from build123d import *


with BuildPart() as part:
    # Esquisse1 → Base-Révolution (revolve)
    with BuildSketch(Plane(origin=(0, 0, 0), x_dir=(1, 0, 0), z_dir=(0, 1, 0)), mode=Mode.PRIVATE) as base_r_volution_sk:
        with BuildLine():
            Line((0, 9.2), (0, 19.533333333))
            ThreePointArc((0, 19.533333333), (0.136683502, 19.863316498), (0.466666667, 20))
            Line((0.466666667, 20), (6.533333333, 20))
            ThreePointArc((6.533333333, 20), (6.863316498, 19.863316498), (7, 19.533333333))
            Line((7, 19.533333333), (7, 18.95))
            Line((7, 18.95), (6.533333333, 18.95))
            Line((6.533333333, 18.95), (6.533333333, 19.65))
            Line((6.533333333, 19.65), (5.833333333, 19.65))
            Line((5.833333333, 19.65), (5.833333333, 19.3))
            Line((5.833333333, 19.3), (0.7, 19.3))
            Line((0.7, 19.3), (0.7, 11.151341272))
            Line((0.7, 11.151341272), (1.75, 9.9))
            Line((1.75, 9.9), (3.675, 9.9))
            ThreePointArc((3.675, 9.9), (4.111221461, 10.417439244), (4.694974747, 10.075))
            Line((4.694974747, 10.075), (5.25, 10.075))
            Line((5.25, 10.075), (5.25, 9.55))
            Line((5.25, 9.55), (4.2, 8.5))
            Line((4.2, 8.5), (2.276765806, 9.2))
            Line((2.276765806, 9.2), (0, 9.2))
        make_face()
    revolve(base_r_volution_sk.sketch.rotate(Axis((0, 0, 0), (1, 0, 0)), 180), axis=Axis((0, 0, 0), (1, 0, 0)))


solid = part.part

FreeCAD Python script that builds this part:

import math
import FreeCAD as App
import Part
import Sketcher

V = App.Vector
Q = App.Units.Quantity

doc = App.newDocument("Part")
body = doc.addObject("PartDesign::Body", "Body")

sketch1 = body.newObject("Sketcher::SketchObject", "Sketch")
sketch1.AttachmentSupport = (doc.getObject("XZ_Plane"), [""])
sketch1.MapMode = "FlatFace"
sketch1.addGeometry(Part.LineSegment(V(0, -19.53, 0), V(0, -9.2, 0)), False)
sketch1.addGeometry(Part.LineSegment(V(0, -9.2, 0), V(2.28, -9.2, 0)), False)
sketch1.addGeometry(Part.LineSegment(V(2.28, -9.2, 0), V(4.2, -8.5, 0)), False)
sketch1.addGeometry(Part.LineSegment(V(4.2, -8.5, 0), V(5.25, -9.55, 0)), False)
sketch1.addGeometry(Part.LineSegment(V(5.25, -9.55, 0), V(5.25, -10.07, 0)), False)
sketch1.addGeometry(Part.LineSegment(V(5.25, -10.07, 0), V(4.69, -10.07, 0)), False)
sketch1.addGeometry(Part.ArcOfCircle(Part.Circle(V(4.2, -9.9, 0), V(0, 0, 1), 0.53), math.radians(180), math.radians(341)), False)
sketch1.addGeometry(Part.LineSegment(V(3.67, -9.9, 0), V(1.75, -9.9, 0)), False)
sketch1.addGeometry(Part.LineSegment(V(1.75, -9.9, 0), V(0.7, -11.15, 0)), False)
sketch1.addGeometry(Part.LineSegment(V(0.7, -11.15, 0), V(0.7, -19.3, 0)), False)
sketch1.addGeometry(Part.LineSegment(V(0.7, -19.3, 0), V(5.83, -19.3, 0)), False)
sketch1.addGeometry(Part.LineSegment(V(5.83, -19.3, 0), V(5.83, -19.65, 0)), False)
sketch1.addGeometry(Part.LineSegment(V(5.83, -19.65, 0), V(6.53, -19.65, 0)), False)
sketch1.addGeometry(Part.LineSegment(V(6.53, -19.65, 0), V(6.53, -18.95, 0)), False)
sketch1.addGeometry(Part.LineSegment(V(6.53, -18.95, 0), V(7, -18.95, 0)), False)
sketch1.addGeometry(Part.LineSegment(V(7, -18.95, 0), V(7, -19.53, 0)), False)
sketch1.addGeometry(Part.ArcOfCircle(Part.Circle(V(6.53, -19.53, 0), V(0, 0, 1), 0.47), math.radians(-90), math.radians(0)), False)
sketch1.addGeometry(Part.LineSegment(V(6.53, -20, 0), V(0.47, -20, 0)), False)
sketch1.addGeometry(Part.ArcOfCircle(Part.Circle(V(0.47, -19.53, 0), V(0, 0, 1), 0.47), math.radians(180), math.radians(270)), False)
sketch1.addConstraint(Sketcher.Constraint("Coincident", 0, 2, 1, 1))
sketch1.addConstraint(Sketcher.Constraint("Coincident", 1, 2, 2, 1))
sketch1.addConstraint(Sketcher.Constraint("Coincident", 2, 2, 3, 1))
sketch1.addConstraint(Sketcher.Constraint("Coincident", 3, 2, 4, 1))
sketch1.addConstraint(Sketcher.Constraint("Coincident", 4, 2, 5, 1))
sketch1.addConstraint(Sketcher.Constraint("Coincident", 5, 2, 6, 2))
sketch1.addConstraint(Sketcher.Constraint("Coincident", 6, 1, 7, 1))
sketch1.addConstraint(Sketcher.Constraint("Coincident", 7, 2, 8, 1))
sketch1.addConstraint(Sketcher.Constraint("Coincident", 8, 2, 9, 1))
sketch1.addConstraint(Sketcher.Constraint("Coincident", 9, 2, 10, 1))
sketch1.addConstraint(Sketcher.Constraint("Coincident", 10, 2, 11, 1))
sketch1.addConstraint(Sketcher.Constraint("Coincident", 11, 2, 12, 1))
sketch1.addConstraint(Sketcher.Constraint("Coincident", 12, 2, 13, 1))
sketch1.addConstraint(Sketcher.Constraint("Coincident", 13, 2, 14, 1))
sketch1.addConstraint(Sketcher.Constraint("Coincident", 14, 2, 15, 1))
sketch1.addConstraint(Sketcher.Constraint("Tangent", 15, 2, 16, 2))
sketch1.addConstraint(Sketcher.Constraint("Tangent", 16, 1, 17, 1))
sketch1.addConstraint(Sketcher.Constraint("Tangent", 17, 2, 18, 2))
sketch1.addConstraint(Sketcher.Constraint("Tangent", 18, 1, 0, 1))
sketch1.addConstraint(Sketcher.Constraint("Vertical", 0))
sketch1.addConstraint(Sketcher.Constraint("Horizontal", 1))
sketch1.addConstraint(Sketcher.Constraint("Vertical", 4))
sketch1.addConstraint(Sketcher.Constraint("Horizontal", 5))
sketch1.addConstraint(Sketcher.Constraint("Horizontal", 7))
sketch1.addConstraint(Sketcher.Constraint("Vertical", 9))
sketch1.addConstraint(Sketcher.Constraint("Horizontal", 10))
sketch1.addConstraint(Sketcher.Constraint("Vertical", 11))
sketch1.addConstraint(Sketcher.Constraint("Horizontal", 12))
sketch1.addConstraint(Sketcher.Constraint("Vertical", 13))
sketch1.addConstraint(Sketcher.Constraint("Horizontal", 14))
sketch1.addConstraint(Sketcher.Constraint("Vertical", 15))
sketch1.addConstraint(Sketcher.Constraint("Horizontal", 17))
sketch1.addConstraint(Sketcher.Constraint("Equal", 16, 18))
sketch1.addConstraint(Sketcher.Constraint("PointOnObject", 0, 2, -2))
sketch1.addConstraint(Sketcher.Constraint("Vertical", 6, 3, 2, 2))
sketch1.addConstraint(Sketcher.Constraint("Vertical", 16, 3, 12, 2))
sketch1.addConstraint(Sketcher.Constraint("Equal", 12, 13))
sketch1.addConstraint(Sketcher.Constraint("Angle", 2, Q("20 deg")))
sketch1.addConstraint(Sketcher.Constraint("Angle", 3, Q("-45 deg")))
sketch1.addConstraint(Sketcher.Constraint("Angle", 8, Q("-130 deg")))
sketch1.addConstraint(Sketcher.Constraint("DistanceX", 12, 1, 12, 2, 0.7))
sketch1.addConstraint(Sketcher.Constraint("DistanceX", -1, 1, 14, 2, 7.0))
sketch1.addConstraint(Sketcher.Constraint("DistanceY", 16, 1, -1, 1, 20.0))
sketch1.addConstraint(Sketcher.Constraint("Radius", 6, 0.525))
sketch1.addConstraint(Sketcher.Constraint("DistanceY", 11, 2, 11, 1, 0.35))
sketch1.addConstraint(Sketcher.Constraint("DistanceX", -1, 1, 6, 3, 4.2))
sketch1.addConstraint(Sketcher.Constraint("DistanceY", 6, 3, -1, 1, 9.9))
sketch1.addConstraint(Sketcher.Constraint("DistanceY", 0, 2, -1, 1, 9.2))
sketch1.addConstraint(Sketcher.Constraint("DistanceY", 2, 2, -1, 1, 8.5))
sketch1.addConstraint(Sketcher.Constraint("DistanceY", 6, 1, -1, 1, 9.9))
sketch1.addConstraint(Sketcher.Constraint("DistanceX", -1, 1, 8, 2, 0.7))
sketch1.addConstraint(Sketcher.Constraint("DistanceY", 9, 2, -1, 1, 19.3))
sketch1.addConstraint(Sketcher.Constraint("DistanceX", 7, 2, 7, 1, 1.925))
sketch1.addConstraint(Sketcher.Constraint("DistanceY", 4, 2, 4, 1, 0.525))
sketch1.addConstraint(Sketcher.Constraint("DistanceX", -1, 1, 3, 2, 5.25))
sketch1.addConstraint(Sketcher.Constraint("Radius", 16, 0.466667))
revolution = body.newObject("PartDesign::Revolution", "Revolution")
revolution.Profile = sketch1
revolution.ReferenceAxis = (sketch1, ["H_Axis"])
revolution.Angle = 360

doc.recompute()
